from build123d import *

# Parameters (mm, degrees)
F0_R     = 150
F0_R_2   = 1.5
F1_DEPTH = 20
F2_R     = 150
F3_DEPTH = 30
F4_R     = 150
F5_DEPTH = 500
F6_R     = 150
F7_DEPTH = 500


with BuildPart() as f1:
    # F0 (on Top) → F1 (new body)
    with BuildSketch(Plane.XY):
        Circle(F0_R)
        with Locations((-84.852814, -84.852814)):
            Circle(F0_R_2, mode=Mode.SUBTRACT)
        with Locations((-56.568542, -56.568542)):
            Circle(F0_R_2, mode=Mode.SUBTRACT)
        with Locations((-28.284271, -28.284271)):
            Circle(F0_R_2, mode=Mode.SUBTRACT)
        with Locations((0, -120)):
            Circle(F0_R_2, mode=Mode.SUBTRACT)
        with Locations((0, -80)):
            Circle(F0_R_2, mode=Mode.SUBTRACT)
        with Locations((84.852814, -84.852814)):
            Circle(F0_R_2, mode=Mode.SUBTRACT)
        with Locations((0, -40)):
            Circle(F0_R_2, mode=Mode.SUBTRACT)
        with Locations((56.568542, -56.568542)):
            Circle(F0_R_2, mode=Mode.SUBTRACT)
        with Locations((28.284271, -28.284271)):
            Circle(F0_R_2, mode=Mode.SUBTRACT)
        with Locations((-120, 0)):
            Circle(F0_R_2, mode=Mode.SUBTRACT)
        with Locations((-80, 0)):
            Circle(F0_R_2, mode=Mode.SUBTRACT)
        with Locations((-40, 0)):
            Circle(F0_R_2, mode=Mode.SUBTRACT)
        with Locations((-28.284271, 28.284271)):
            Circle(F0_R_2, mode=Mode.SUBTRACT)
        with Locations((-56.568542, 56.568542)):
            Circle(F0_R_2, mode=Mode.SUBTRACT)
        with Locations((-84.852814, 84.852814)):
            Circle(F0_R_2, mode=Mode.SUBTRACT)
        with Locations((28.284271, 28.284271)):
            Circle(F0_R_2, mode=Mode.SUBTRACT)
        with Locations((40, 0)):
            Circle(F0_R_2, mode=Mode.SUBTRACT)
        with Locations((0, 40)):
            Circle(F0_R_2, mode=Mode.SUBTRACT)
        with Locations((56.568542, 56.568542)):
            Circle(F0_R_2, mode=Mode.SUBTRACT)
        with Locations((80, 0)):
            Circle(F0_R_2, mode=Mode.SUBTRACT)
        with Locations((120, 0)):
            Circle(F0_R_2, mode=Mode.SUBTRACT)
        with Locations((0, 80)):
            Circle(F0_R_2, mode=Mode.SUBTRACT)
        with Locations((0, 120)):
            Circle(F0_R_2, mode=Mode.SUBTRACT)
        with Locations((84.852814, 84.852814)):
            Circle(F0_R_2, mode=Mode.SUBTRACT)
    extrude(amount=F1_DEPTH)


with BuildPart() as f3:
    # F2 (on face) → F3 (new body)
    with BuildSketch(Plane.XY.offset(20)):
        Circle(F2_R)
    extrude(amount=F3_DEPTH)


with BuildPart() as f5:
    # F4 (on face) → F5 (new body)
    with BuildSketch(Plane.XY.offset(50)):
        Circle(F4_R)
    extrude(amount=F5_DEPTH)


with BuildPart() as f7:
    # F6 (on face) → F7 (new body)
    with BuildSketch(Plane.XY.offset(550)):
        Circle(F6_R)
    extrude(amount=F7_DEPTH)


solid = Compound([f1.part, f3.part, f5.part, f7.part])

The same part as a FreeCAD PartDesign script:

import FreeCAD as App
import Part
import Sketcher

V = App.Vector

doc = App.newDocument("Part")
body = doc.addObject("PartDesign::Body", "Body")

# Sketch on XY plane
sketch1 = body.newObject("Sketcher::SketchObject", "Sketch")
sketch1.AttachmentSupport = (doc.getObject("XY_Plane"), [""])
sketch1.MapMode = "FlatFace"
sketch1.addGeometry([
    Part.Circle(V(0, 0, 0), V(0, 0, 1), 150),  # 0
    Part.Circle(V(-84.9, -84.9, 0), V(0, 0, 1), 1.5),  # 1
    Part.Circle(V(-56.6, -56.6, 0), V(0, 0, 1), 1.5),  # 2
    Part.Circle(V(-28.3, -28.3, 0), V(0, 0, 1), 1.5),  # 3
    Part.Circle(V(0, -120, 0), V(0, 0, 1), 1.5),  # 4
    Part.Circle(V(0, -80, 0), V(0, 0, 1), 1.5),  # 5
    Part.Circle(V(84.9, -84.9, 0), V(0, 0, 1), 1.5),  # 6
    Part.Circle(V(0, -40, 0), V(0, 0, 1), 1.5),  # 7
    Part.Circle(V(56.6, -56.6, 0), V(0, 0, 1), 1.5),  # 8
    Part.Circle(V(28.3, -28.3, 0), V(0, 0, 1), 1.5),  # 9
    Part.Circle(V(-120, 0, 0), V(0, 0, 1), 1.5),  # 10
    Part.Circle(V(-80, 0, 0), V(0, 0, 1), 1.5),  # 11
    Part.Circle(V(-40, 0, 0), V(0, 0, 1), 1.5),  # 12
    Part.Circle(V(-28.3, 28.3, 0), V(0, 0, 1), 1.5),  # 13
    Part.Circle(V(-56.6, 56.6, 0), V(0, 0, 1), 1.5),  # 14
    Part.Circle(V(-84.9, 84.9, 0), V(0, 0, 1), 1.5),  # 15
    Part.Circle(V(28.3, 28.3, 0), V(0, 0, 1), 1.5),  # 16
    Part.Circle(V(40, 0, 0), V(0, 0, 1), 1.5),  # 17
    Part.Circle(V(0, 40, 0), V(0, 0, 1), 1.5),  # 18
    Part.Circle(V(56.6, 56.6, 0), V(0, 0, 1), 1.5),  # 19
    Part.Circle(V(80, 0, 0), V(0, 0, 1), 1.5),  # 20
    Part.Circle(V(120, 0, 0), V(0, 0, 1), 1.5),  # 21
    Part.Circle(V(0, 80, 0), V(0, 0, 1), 1.5),  # 22
    Part.Circle(V(0, 120, 0), V(0, 0, 1), 1.5),  # 23
    Part.Circle(V(84.9, 84.9, 0), V(0, 0, 1), 1.5),  # 24
], False)
sketch1.addConstraint([
    Sketcher.Constraint("Coincident", 0, 3, -1, 1),
    Sketcher.Constraint("Equal", 1, 2),
    Sketcher.Constraint("Equal", 2, 3),
    Sketcher.Constraint("Equal", 3, 4),
    Sketcher.Constraint("Equal", 4, 5),
    Sketcher.Constraint("Equal", 5, 6),
    Sketcher.Constraint("Equal", 6, 7),
    Sketcher.Constraint("Equal", 7, 8),
    Sketcher.Constraint("Equal", 8, 9),
    Sketcher.Constraint("Equal", 9, 10),
    Sketcher.Constraint("Equal", 10, 11),
    Sketcher.Constraint("Equal", 11, 12),
    Sketcher.Constraint("Equal", 12, 13),
    Sketcher.Constraint("Equal", 13, 14),
    Sketcher.Constraint("Equal", 14, 15),
    Sketcher.Constraint("Equal", 15, 16),
    Sketcher.Constraint("Equal", 16, 17),
    Sketcher.Constraint("Equal", 17, 18),
    Sketcher.Constraint("Equal", 18, 19),
    Sketcher.Constraint("Equal", 19, 20),
    Sketcher.Constraint("Equal", 20, 21),
    Sketcher.Constraint("Equal", 21, 22),
    Sketcher.Constraint("Equal", 22, 23),
    Sketcher.Constraint("Equal", 23, 24),
    Sketcher.Constraint("Symmetric", 9, 3, 13, 3, -1, 1),
    Sketcher.Constraint("Symmetric", 8, 3, 14, 3, -1, 1),
    Sketcher.Constraint("Symmetric", 6, 3, 15, 3, -1, 1),
    Sketcher.Constraint("Symmetric", 3, 3, 16, 3, -1, 1),
    Sketcher.Constraint("Symmetric", 12, 3, 17, 3, -1, 1),
    Sketcher.Constraint("Symmetric", 7, 3, 18, 3, -1, 1),
    Sketcher.Constraint("Symmetric", 2, 3, 19, 3, -1, 1),
    Sketcher.Constraint("Symmetric", 11, 3, 20, 3, -1, 1),
    Sketcher.Constraint("Symmetric", 10, 3, 21, 3, -1, 1),
    Sketcher.Constraint("Symmetric", 5, 3, 22, 3, -1, 1),
    Sketcher.Constraint("Symmetric", 4, 3, 23, 3, -1, 1),
    Sketcher.Constraint("Symmetric", 1, 3, 24, 3, -1, 1),
    Sketcher.Constraint("Symmetric", 1, 3, 6, 3, -2),
    Sketcher.Constraint("Symmetric", 2, 3, 8, 3, -2),
    Sketcher.Constraint("Symmetric", 3, 3, 9, 3, -2),
    Sketcher.Constraint("PointOnObject", 4, 3, -2),
    Sketcher.Constraint("PointOnObject", 5, 3, -2),
    Sketcher.Constraint("PointOnObject", 7, 3, -2),
    Sketcher.Constraint("PointOnObject", 10, 3, -1),
    Sketcher.Constraint("PointOnObject", 11, 3, -1),
    Sketcher.Constraint("PointOnObject", 12, 3, -1),
    Sketcher.Constraint("Diameter", 0, 300.0),
    Sketcher.Constraint("Diameter", 1, 3.0),
    Sketcher.Constraint("DistanceY", 4, 3, -1, 1, 120.0),
    Sketcher.Constraint("DistanceY", 5, 3, -1, 1, 80.0),
    Sketcher.Constraint("DistanceY", 7, 3, -1, 1, 40.0),
    Sketcher.Constraint("DistanceX", 10, 3, -1, 1, 120.0),
    Sketcher.Constraint("DistanceX", 11, 3, -1, 1, 80.0),
    Sketcher.Constraint("DistanceX", 12, 3, -1, 1, 40.0),
    Sketcher.Constraint("DistanceX", 3, 3, -1, 1, 28.284271),
    Sketcher.Constraint("DistanceY", 3, 3, -1, 1, 28.284271),
    Sketcher.Constraint("DistanceX", 1, 3, 2, 3, 28.284272),
    Sketcher.Constraint("DistanceY", 1, 3, 2, 3, 28.284272),
    Sketcher.Constraint("DistanceX", 2, 3, 3, 3, 28.284271),
    Sketcher.Constraint("DistanceY", 2, 3, 3, 3, 28.284271),
])
pad1 = body.newObject("PartDesign::Pad", "Pad")
pad1.Profile = sketch1
pad1.Length = 20
body2 = doc.addObject("PartDesign::Body", "Body001")

# Sketch on XY plane
sketch2 = body2.newObject("Sketcher::SketchObject", "Sketch001")
sketch2.AttachmentSupport = (doc.getObject("XY_Plane001"), [""])
sketch2.MapMode = "FlatFace"
sketch2.AttachmentOffset = App.Placement(V(0, 0, 20), App.Rotation())
sketch2.addGeometry(Part.Circle(V(0, 0, 0), V(0, 0, 1), 150), False)
sketch2.addConstraint([
    Sketcher.Constraint("Coincident", 0, 3, -1, 1),
    Sketcher.Constraint("Diameter", 0, 300.0),
])
pad2 = body2.newObject("PartDesign::Pad", "Pad001")
pad2.Profile = sketch2
pad2.Length = 30
body3 = doc.addObject("PartDesign::Body", "Body002")

# Sketch on XY plane
sketch3 = body3.newObject("Sketcher::SketchObject", "Sketch002")
sketch3.AttachmentSupport = (doc.getObject("XY_Plane002"), [""])
sketch3.MapMode = "FlatFace"
sketch3.AttachmentOffset = App.Placement(V(0, 0, 50), App.Rotation())
sketch3.addGeometry(Part.Circle(V(0, 0, 0), V(0, 0, 1), 150), False)
sketch3.addConstraint([
    Sketcher.Constraint("Coincident", 0, 3, -1, 1),
    Sketcher.Constraint("Diameter", 0, 300.0),
])
pad3 = body3.newObject("PartDesign::Pad", "Pad002")
pad3.Profile = sketch3
pad3.Length = 500
body4 = doc.addObject("PartDesign::Body", "Body003")

# Sketch on XY plane
sketch4 = body4.newObject("Sketcher::SketchObject", "Sketch003")
sketch4.AttachmentSupport = (doc.getObject("XY_Plane003"), [""])
sketch4.MapMode = "FlatFace"
sketch4.AttachmentOffset = App.Placement(V(0, 0, 550), App.Rotation())
sketch4.addGeometry(Part.Circle(V(0, 0, 0), V(0, 0, 1), 150), False)
sketch4.addConstraint([
    Sketcher.Constraint("Coincident", 0, 3, -1, 1),
    Sketcher.Constraint("Diameter", 0, 300.0),
])
pad4 = body4.newObject("PartDesign::Pad", "Pad003")
pad4.Profile = sketch4
pad4.Length = 500

doc.recompute()
